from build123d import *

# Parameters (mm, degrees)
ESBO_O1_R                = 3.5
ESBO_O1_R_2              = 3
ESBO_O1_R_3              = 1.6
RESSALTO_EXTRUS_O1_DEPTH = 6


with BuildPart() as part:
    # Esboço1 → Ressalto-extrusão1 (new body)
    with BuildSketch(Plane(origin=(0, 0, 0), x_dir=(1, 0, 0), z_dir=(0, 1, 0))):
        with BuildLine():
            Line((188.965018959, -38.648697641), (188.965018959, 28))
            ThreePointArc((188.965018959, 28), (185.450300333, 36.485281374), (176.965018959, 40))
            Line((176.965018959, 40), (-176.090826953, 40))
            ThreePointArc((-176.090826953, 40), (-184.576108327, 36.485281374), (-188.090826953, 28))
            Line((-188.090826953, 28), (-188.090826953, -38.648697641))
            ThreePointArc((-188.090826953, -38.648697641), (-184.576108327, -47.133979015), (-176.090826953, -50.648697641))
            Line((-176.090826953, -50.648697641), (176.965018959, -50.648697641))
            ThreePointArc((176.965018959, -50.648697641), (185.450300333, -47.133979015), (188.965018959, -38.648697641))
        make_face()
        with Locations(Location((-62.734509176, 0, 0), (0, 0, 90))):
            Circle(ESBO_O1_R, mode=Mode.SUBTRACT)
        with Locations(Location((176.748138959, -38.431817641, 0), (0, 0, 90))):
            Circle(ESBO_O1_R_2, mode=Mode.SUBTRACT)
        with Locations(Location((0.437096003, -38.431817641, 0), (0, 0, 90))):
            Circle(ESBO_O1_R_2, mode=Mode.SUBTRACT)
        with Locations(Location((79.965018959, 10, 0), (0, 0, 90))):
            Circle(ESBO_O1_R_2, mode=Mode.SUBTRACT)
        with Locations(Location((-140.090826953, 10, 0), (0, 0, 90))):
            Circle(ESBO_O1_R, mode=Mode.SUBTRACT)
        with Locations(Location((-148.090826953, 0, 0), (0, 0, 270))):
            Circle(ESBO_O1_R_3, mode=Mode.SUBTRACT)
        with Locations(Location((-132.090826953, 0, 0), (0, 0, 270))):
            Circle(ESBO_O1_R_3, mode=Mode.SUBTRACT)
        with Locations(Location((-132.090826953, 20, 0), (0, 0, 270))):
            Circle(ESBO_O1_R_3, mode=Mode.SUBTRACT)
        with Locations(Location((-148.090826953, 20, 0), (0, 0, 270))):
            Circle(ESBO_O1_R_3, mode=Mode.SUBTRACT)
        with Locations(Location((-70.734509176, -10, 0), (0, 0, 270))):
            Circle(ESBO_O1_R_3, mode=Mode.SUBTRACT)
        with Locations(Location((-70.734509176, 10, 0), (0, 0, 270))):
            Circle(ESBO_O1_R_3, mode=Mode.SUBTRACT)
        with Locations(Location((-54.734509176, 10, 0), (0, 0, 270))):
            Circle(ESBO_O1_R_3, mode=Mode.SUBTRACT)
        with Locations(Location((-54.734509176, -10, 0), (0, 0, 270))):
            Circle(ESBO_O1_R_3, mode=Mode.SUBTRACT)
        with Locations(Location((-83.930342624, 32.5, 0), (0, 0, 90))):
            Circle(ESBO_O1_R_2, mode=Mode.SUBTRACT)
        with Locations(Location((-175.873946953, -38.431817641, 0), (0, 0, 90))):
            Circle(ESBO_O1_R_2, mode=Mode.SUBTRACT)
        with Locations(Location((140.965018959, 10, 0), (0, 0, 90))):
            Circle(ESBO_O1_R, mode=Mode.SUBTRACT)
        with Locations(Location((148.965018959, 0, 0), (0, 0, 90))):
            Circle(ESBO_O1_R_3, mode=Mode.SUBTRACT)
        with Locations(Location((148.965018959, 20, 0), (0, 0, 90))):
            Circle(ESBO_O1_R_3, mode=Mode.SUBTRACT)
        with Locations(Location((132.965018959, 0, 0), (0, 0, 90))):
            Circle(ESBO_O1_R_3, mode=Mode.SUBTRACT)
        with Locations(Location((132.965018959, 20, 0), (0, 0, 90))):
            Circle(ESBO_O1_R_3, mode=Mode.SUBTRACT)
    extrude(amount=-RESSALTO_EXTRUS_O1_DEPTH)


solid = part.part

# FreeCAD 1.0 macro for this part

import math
import FreeCAD as App
import Part
import Sketcher

V = App.Vector

doc = App.newDocument("Part")
params = doc.addObject("Spreadsheet::Sheet", "Params")
for row, (alias, value) in enumerate([
    ("sketch1_diameter", "6 mm"),
    ("sketch1_diameter2", "7 mm"),
    ("sketch1_radius", "12 mm"),
    ("sketch1_diameter3", "3.2 mm"),
    ("pad1_length", "6 mm"),
], start=1):
    params.set(f"A{row}", alias)
    params.set(f"B{row}", "=" + value)
    params.setAlias(f"B{row}", alias)

body = doc.addObject("PartDesign::Body", "Body")

# Sketch on XZ plane
sketch1 = body.newObject("Sketcher::SketchObject", "Sketch")
sketch1.AttachmentSupport = (doc.getObject("XZ_Plane"), [""])
sketch1.MapMode = "FlatFace"
sketch1.addGeometry([
    Part.LineSegment(V(189, 38.6, 0), V(189, -28, 0)),  # 0
    Part.ArcOfCircle(Part.Circle(V(177, -28, 0), V(0, 0, 1), 12), math.radians(-90), math.radians(0)),  # 1
    Part.LineSegment(V(177, -40, 0), V(-176.1, -40, 0)),  # 2
    Part.ArcOfCircle(Part.Circle(V(-176.1, -28, 0), V(0, 0, 1), 12), math.radians(-180), math.radians(-90)),  # 3
    Part.LineSegment(V(-188.1, -28, 0), V(-188.1, 38.6, 0)),  # 4
    Part.ArcOfCircle(Part.Circle(V(-176.1, 38.6, 0), V(0, 0, 1), 12), math.radians(90), math.radians(180)),  # 5
    Part.LineSegment(V(-176.1, 50.6, 0), V(177, 50.6, 0)),  # 6
    Part.ArcOfCircle(Part.Circle(V(177, 38.6, 0), V(0, 0, 1), 12), math.radians(0), math.radians(90)),  # 7
    Part.Circle(V(-175.9, 38.4, 0), V(0, 0, 1), 3),  # 8
    Part.Circle(V(-70.7, 10, 0), V(0, 0, 1), 1.6),  # 9
    Part.Circle(V(-54.7, 10, 0), V(0, 0, 1), 1.6),  # 10
    Part.Circle(V(0.4, 38.4, 0), V(0, 0, 1), 3),  # 11
    Part.Circle(V(176.7, 38.4, 0), V(0, 0, 1), 3),  # 12
    Part.Circle(V(-148.1, 0, 0), V(0, 0, 1), 1.6),  # 13
    Part.Circle(V(-132.1, 0, 0), V(0, 0, 1), 1.6),  # 14
    Part.Circle(V(-140.1, -10, 0), V(0, 0, 1), 3.5),  # 15
    Part.Circle(V(-62.7, 0, 0), V(0, 0, 1), 3.5),  # 16
    Part.Circle(V(-70.7, -10, 0), V(0, 0, 1), 1.6),  # 17
    Part.Circle(V(-54.7, -10, 0), V(0, 0, 1), 1.6),  # 18
    Part.Circle(V(-148.1, -20, 0), V(0, 0, 1), 1.6),  # 19
    Part.Circle(V(-132.1, -20, 0), V(0, 0, 1), 1.6),  # 20
    Part.Circle(V(-83.9, -32.5, 0), V(0, 0, 1), 3),  # 21
    Part.Circle(V(80, -10, 0), V(0, 0, 1), 3),  # 22
    Part.Circle(V(133, 0, 0), V(0, 0, 1), 1.6),  # 23
    Part.Circle(V(149, 0, 0), V(0, 0, 1), 1.6),  # 24
    Part.Circle(V(141, -10, 0), V(0, 0, 1), 3.5),  # 25
    Part.Circle(V(133, -20, 0), V(0, 0, 1), 1.6),  # 26
    Part.Circle(V(149, -20, 0), V(0, 0, 1), 1.6),  # 27
], False)
sketch1.addConstraint([
    Sketcher.Constraint("Tangent", 0, 2, 1, 2),
    Sketcher.Constraint("Tangent", 1, 1, 2, 1),
    Sketcher.Constraint("Tangent", 2, 2, 3, 2),
    Sketcher.Constraint("Tangent", 3, 1, 4, 1),
    Sketcher.Constraint("Tangent", 4, 2, 5, 2),
    Sketcher.Constraint("Tangent", 5, 1, 6, 1),
    Sketcher.Constraint("Tangent", 6, 2, 7, 2),
    Sketcher.Constraint("Tangent", 7, 1, 0, 1),
    Sketcher.Constraint("Vertical", 0),
    Sketcher.Constraint("Horizontal", 2),
    Sketcher.Constraint("Vertical", 4),
    Sketcher.Constraint("Horizontal", 6),
    Sketcher.Constraint("Equal", 1, 3),
    Sketcher.Constraint("Equal", 3, 5),
    Sketcher.Constraint("Equal", 5, 7),
    Sketcher.Constraint("Equal", 9, 10),
    Sketcher.Constraint("Equal", 8, 11),
    Sketcher.Constraint("Equal", 11, 12),
    Sketcher.Constraint("Equal", 10, 13),
    Sketcher.Constraint("Equal", 13, 14),
    Sketcher.Constraint("Equal", 15, 16),
    Sketcher.Constraint("Equal", 14, 17),
    Sketcher.Constraint("Equal", 17, 18),
    Sketcher.Constraint("Equal", 18, 19),
    Sketcher.Constraint("Equal", 19, 20),
    Sketcher.Constraint("Equal", 12, 21),
    Sketcher.Constraint("Equal", 21, 22),
    Sketcher.Constraint("Equal", 20, 23),
    Sketcher.Constraint("Equal", 23, 24),
    Sketcher.Constraint("Equal", 16, 25),
    Sketcher.Constraint("Equal", 24, 26),
    Sketcher.Constraint("Equal", 26, 27),
    Sketcher.Constraint("Symmetric", 9, 3, 17, 3, -1),
    Sketcher.Constraint("Symmetric", 10, 3, 18, 3, -1),
    Sketcher.Constraint("PointOnObject", 13, 3, -1),
    Sketcher.Constraint("PointOnObject", 14, 3, -1),
    Sketcher.Constraint("PointOnObject", 16, 3, -1),
    Sketcher.Constraint("PointOnObject", 23, 3, -1),
    Sketcher.Constraint("PointOnObject", 24, 3, -1),
    Sketcher.Constraint("Horizontal", 9, 3, 10, 3),
    Sketcher.Constraint("Horizontal", 8, 3, 11, 3),
    Sketcher.Constraint("Horizontal", 11, 3, 12, 3),
    Sketcher.Constraint("Horizontal", 15, 3, 17, 3),
    Sketcher.Constraint("Horizontal", 19, 3, 20, 3),
    Sketcher.Constraint("Horizontal", 18, 3, 22, 3),
    Sketcher.Constraint("Horizontal", 22, 3, 25, 3),
    Sketcher.Constraint("Horizontal", 20, 3, 26, 3),
    Sketcher.Constraint("Horizontal", 26, 3, 27, 3),
    Sketcher.Constraint("Vertical", 13, 3, 19, 3),
    Sketcher.Constraint("Vertical", 14, 3, 20, 3),
    Sketcher.Constraint("Vertical", 23, 3, 26, 3),
    Sketcher.Constraint("Vertical", 24, 3, 27, 3),
    Sketcher.Constraint("Diameter", 8, 6.0),
    Sketcher.Constraint("Diameter", 15, 7.0),
    Sketcher.Constraint("Radius", 1, 12.0),
    Sketcher.Constraint("Diameter", 9, 3.2),
    Sketcher.Constraint("DistanceY", 1, 3, -1, 1, 28.0),
    Sketcher.Constraint("DistanceY", -1, 1, 9, 3, 10.0),
    Sketcher.Constraint("DistanceY", 19, 3, -1, 1, 20.0),
    Sketcher.Constraint("DistanceX", 9, 3, 10, 3, 16.0),
    Sketcher.Constraint("DistanceX", 3, 3, 13, 3, 28.0),
    Sketcher.Constraint("DistanceX", 13, 3, 14, 3, 16.0),
    Sketcher.Constraint("DistanceX", 13, 3, 15, 3, 8.0),
    Sketcher.Constraint("DistanceX", 9, 3, 16, 3, 8.0),
    Sketcher.Constraint("DistanceX", 22, 3, 1, 3, 97.0),
    Sketcher.Constraint("DistanceX", 23, 3, 1, 3, 44.0),
    Sketcher.Constraint("DistanceX", 23, 3, 24, 3, 16.0),
    Sketcher.Constraint("DistanceX", 23, 3, 25, 3, 8.0),
    Sketcher.Constraint("DistanceY", 21, 3, -1, 1, 32.5),
    Sketcher.Constraint("DistanceX", 2, 2, 2, 1, 353.055846),
    Sketcher.Constraint("DistanceY", 0, 2, 0, 1, 66.648698),
    Sketcher.Constraint("DistanceX", -1, 1, 1, 3, 176.965019),
    Sketcher.Constraint("DistanceX", 9, 3, -1, 1, 70.734509),
    Sketcher.Constraint("DistanceX", -1, 1, 12, 3, 176.748139),
    Sketcher.Constraint("DistanceX", 5, 3, 8, 3, 0.21688),
    Sketcher.Constraint("DistanceY", 8, 3, 5, 3, 0.21688),
    Sketcher.Constraint("DistanceX", -1, 1, 11, 3, 0.437096),
    Sketcher.Constraint("DistanceX", 21, 3, -1, 1, 83.930343),
])
sketch1.setExpression("Constraints[52]", "Params.sketch1_diameter")
sketch1.setExpression("Constraints[53]", "Params.sketch1_diameter2")
sketch1.setExpression("Constraints[54]", "Params.sketch1_radius")
sketch1.setExpression("Constraints[55]", "Params.sketch1_diameter3")
pad1 = body.newObject("PartDesign::Pad", "Pad")
pad1.Profile = sketch1
pad1.setExpression("Length", "Params.pad1_length")

doc.recompute()
